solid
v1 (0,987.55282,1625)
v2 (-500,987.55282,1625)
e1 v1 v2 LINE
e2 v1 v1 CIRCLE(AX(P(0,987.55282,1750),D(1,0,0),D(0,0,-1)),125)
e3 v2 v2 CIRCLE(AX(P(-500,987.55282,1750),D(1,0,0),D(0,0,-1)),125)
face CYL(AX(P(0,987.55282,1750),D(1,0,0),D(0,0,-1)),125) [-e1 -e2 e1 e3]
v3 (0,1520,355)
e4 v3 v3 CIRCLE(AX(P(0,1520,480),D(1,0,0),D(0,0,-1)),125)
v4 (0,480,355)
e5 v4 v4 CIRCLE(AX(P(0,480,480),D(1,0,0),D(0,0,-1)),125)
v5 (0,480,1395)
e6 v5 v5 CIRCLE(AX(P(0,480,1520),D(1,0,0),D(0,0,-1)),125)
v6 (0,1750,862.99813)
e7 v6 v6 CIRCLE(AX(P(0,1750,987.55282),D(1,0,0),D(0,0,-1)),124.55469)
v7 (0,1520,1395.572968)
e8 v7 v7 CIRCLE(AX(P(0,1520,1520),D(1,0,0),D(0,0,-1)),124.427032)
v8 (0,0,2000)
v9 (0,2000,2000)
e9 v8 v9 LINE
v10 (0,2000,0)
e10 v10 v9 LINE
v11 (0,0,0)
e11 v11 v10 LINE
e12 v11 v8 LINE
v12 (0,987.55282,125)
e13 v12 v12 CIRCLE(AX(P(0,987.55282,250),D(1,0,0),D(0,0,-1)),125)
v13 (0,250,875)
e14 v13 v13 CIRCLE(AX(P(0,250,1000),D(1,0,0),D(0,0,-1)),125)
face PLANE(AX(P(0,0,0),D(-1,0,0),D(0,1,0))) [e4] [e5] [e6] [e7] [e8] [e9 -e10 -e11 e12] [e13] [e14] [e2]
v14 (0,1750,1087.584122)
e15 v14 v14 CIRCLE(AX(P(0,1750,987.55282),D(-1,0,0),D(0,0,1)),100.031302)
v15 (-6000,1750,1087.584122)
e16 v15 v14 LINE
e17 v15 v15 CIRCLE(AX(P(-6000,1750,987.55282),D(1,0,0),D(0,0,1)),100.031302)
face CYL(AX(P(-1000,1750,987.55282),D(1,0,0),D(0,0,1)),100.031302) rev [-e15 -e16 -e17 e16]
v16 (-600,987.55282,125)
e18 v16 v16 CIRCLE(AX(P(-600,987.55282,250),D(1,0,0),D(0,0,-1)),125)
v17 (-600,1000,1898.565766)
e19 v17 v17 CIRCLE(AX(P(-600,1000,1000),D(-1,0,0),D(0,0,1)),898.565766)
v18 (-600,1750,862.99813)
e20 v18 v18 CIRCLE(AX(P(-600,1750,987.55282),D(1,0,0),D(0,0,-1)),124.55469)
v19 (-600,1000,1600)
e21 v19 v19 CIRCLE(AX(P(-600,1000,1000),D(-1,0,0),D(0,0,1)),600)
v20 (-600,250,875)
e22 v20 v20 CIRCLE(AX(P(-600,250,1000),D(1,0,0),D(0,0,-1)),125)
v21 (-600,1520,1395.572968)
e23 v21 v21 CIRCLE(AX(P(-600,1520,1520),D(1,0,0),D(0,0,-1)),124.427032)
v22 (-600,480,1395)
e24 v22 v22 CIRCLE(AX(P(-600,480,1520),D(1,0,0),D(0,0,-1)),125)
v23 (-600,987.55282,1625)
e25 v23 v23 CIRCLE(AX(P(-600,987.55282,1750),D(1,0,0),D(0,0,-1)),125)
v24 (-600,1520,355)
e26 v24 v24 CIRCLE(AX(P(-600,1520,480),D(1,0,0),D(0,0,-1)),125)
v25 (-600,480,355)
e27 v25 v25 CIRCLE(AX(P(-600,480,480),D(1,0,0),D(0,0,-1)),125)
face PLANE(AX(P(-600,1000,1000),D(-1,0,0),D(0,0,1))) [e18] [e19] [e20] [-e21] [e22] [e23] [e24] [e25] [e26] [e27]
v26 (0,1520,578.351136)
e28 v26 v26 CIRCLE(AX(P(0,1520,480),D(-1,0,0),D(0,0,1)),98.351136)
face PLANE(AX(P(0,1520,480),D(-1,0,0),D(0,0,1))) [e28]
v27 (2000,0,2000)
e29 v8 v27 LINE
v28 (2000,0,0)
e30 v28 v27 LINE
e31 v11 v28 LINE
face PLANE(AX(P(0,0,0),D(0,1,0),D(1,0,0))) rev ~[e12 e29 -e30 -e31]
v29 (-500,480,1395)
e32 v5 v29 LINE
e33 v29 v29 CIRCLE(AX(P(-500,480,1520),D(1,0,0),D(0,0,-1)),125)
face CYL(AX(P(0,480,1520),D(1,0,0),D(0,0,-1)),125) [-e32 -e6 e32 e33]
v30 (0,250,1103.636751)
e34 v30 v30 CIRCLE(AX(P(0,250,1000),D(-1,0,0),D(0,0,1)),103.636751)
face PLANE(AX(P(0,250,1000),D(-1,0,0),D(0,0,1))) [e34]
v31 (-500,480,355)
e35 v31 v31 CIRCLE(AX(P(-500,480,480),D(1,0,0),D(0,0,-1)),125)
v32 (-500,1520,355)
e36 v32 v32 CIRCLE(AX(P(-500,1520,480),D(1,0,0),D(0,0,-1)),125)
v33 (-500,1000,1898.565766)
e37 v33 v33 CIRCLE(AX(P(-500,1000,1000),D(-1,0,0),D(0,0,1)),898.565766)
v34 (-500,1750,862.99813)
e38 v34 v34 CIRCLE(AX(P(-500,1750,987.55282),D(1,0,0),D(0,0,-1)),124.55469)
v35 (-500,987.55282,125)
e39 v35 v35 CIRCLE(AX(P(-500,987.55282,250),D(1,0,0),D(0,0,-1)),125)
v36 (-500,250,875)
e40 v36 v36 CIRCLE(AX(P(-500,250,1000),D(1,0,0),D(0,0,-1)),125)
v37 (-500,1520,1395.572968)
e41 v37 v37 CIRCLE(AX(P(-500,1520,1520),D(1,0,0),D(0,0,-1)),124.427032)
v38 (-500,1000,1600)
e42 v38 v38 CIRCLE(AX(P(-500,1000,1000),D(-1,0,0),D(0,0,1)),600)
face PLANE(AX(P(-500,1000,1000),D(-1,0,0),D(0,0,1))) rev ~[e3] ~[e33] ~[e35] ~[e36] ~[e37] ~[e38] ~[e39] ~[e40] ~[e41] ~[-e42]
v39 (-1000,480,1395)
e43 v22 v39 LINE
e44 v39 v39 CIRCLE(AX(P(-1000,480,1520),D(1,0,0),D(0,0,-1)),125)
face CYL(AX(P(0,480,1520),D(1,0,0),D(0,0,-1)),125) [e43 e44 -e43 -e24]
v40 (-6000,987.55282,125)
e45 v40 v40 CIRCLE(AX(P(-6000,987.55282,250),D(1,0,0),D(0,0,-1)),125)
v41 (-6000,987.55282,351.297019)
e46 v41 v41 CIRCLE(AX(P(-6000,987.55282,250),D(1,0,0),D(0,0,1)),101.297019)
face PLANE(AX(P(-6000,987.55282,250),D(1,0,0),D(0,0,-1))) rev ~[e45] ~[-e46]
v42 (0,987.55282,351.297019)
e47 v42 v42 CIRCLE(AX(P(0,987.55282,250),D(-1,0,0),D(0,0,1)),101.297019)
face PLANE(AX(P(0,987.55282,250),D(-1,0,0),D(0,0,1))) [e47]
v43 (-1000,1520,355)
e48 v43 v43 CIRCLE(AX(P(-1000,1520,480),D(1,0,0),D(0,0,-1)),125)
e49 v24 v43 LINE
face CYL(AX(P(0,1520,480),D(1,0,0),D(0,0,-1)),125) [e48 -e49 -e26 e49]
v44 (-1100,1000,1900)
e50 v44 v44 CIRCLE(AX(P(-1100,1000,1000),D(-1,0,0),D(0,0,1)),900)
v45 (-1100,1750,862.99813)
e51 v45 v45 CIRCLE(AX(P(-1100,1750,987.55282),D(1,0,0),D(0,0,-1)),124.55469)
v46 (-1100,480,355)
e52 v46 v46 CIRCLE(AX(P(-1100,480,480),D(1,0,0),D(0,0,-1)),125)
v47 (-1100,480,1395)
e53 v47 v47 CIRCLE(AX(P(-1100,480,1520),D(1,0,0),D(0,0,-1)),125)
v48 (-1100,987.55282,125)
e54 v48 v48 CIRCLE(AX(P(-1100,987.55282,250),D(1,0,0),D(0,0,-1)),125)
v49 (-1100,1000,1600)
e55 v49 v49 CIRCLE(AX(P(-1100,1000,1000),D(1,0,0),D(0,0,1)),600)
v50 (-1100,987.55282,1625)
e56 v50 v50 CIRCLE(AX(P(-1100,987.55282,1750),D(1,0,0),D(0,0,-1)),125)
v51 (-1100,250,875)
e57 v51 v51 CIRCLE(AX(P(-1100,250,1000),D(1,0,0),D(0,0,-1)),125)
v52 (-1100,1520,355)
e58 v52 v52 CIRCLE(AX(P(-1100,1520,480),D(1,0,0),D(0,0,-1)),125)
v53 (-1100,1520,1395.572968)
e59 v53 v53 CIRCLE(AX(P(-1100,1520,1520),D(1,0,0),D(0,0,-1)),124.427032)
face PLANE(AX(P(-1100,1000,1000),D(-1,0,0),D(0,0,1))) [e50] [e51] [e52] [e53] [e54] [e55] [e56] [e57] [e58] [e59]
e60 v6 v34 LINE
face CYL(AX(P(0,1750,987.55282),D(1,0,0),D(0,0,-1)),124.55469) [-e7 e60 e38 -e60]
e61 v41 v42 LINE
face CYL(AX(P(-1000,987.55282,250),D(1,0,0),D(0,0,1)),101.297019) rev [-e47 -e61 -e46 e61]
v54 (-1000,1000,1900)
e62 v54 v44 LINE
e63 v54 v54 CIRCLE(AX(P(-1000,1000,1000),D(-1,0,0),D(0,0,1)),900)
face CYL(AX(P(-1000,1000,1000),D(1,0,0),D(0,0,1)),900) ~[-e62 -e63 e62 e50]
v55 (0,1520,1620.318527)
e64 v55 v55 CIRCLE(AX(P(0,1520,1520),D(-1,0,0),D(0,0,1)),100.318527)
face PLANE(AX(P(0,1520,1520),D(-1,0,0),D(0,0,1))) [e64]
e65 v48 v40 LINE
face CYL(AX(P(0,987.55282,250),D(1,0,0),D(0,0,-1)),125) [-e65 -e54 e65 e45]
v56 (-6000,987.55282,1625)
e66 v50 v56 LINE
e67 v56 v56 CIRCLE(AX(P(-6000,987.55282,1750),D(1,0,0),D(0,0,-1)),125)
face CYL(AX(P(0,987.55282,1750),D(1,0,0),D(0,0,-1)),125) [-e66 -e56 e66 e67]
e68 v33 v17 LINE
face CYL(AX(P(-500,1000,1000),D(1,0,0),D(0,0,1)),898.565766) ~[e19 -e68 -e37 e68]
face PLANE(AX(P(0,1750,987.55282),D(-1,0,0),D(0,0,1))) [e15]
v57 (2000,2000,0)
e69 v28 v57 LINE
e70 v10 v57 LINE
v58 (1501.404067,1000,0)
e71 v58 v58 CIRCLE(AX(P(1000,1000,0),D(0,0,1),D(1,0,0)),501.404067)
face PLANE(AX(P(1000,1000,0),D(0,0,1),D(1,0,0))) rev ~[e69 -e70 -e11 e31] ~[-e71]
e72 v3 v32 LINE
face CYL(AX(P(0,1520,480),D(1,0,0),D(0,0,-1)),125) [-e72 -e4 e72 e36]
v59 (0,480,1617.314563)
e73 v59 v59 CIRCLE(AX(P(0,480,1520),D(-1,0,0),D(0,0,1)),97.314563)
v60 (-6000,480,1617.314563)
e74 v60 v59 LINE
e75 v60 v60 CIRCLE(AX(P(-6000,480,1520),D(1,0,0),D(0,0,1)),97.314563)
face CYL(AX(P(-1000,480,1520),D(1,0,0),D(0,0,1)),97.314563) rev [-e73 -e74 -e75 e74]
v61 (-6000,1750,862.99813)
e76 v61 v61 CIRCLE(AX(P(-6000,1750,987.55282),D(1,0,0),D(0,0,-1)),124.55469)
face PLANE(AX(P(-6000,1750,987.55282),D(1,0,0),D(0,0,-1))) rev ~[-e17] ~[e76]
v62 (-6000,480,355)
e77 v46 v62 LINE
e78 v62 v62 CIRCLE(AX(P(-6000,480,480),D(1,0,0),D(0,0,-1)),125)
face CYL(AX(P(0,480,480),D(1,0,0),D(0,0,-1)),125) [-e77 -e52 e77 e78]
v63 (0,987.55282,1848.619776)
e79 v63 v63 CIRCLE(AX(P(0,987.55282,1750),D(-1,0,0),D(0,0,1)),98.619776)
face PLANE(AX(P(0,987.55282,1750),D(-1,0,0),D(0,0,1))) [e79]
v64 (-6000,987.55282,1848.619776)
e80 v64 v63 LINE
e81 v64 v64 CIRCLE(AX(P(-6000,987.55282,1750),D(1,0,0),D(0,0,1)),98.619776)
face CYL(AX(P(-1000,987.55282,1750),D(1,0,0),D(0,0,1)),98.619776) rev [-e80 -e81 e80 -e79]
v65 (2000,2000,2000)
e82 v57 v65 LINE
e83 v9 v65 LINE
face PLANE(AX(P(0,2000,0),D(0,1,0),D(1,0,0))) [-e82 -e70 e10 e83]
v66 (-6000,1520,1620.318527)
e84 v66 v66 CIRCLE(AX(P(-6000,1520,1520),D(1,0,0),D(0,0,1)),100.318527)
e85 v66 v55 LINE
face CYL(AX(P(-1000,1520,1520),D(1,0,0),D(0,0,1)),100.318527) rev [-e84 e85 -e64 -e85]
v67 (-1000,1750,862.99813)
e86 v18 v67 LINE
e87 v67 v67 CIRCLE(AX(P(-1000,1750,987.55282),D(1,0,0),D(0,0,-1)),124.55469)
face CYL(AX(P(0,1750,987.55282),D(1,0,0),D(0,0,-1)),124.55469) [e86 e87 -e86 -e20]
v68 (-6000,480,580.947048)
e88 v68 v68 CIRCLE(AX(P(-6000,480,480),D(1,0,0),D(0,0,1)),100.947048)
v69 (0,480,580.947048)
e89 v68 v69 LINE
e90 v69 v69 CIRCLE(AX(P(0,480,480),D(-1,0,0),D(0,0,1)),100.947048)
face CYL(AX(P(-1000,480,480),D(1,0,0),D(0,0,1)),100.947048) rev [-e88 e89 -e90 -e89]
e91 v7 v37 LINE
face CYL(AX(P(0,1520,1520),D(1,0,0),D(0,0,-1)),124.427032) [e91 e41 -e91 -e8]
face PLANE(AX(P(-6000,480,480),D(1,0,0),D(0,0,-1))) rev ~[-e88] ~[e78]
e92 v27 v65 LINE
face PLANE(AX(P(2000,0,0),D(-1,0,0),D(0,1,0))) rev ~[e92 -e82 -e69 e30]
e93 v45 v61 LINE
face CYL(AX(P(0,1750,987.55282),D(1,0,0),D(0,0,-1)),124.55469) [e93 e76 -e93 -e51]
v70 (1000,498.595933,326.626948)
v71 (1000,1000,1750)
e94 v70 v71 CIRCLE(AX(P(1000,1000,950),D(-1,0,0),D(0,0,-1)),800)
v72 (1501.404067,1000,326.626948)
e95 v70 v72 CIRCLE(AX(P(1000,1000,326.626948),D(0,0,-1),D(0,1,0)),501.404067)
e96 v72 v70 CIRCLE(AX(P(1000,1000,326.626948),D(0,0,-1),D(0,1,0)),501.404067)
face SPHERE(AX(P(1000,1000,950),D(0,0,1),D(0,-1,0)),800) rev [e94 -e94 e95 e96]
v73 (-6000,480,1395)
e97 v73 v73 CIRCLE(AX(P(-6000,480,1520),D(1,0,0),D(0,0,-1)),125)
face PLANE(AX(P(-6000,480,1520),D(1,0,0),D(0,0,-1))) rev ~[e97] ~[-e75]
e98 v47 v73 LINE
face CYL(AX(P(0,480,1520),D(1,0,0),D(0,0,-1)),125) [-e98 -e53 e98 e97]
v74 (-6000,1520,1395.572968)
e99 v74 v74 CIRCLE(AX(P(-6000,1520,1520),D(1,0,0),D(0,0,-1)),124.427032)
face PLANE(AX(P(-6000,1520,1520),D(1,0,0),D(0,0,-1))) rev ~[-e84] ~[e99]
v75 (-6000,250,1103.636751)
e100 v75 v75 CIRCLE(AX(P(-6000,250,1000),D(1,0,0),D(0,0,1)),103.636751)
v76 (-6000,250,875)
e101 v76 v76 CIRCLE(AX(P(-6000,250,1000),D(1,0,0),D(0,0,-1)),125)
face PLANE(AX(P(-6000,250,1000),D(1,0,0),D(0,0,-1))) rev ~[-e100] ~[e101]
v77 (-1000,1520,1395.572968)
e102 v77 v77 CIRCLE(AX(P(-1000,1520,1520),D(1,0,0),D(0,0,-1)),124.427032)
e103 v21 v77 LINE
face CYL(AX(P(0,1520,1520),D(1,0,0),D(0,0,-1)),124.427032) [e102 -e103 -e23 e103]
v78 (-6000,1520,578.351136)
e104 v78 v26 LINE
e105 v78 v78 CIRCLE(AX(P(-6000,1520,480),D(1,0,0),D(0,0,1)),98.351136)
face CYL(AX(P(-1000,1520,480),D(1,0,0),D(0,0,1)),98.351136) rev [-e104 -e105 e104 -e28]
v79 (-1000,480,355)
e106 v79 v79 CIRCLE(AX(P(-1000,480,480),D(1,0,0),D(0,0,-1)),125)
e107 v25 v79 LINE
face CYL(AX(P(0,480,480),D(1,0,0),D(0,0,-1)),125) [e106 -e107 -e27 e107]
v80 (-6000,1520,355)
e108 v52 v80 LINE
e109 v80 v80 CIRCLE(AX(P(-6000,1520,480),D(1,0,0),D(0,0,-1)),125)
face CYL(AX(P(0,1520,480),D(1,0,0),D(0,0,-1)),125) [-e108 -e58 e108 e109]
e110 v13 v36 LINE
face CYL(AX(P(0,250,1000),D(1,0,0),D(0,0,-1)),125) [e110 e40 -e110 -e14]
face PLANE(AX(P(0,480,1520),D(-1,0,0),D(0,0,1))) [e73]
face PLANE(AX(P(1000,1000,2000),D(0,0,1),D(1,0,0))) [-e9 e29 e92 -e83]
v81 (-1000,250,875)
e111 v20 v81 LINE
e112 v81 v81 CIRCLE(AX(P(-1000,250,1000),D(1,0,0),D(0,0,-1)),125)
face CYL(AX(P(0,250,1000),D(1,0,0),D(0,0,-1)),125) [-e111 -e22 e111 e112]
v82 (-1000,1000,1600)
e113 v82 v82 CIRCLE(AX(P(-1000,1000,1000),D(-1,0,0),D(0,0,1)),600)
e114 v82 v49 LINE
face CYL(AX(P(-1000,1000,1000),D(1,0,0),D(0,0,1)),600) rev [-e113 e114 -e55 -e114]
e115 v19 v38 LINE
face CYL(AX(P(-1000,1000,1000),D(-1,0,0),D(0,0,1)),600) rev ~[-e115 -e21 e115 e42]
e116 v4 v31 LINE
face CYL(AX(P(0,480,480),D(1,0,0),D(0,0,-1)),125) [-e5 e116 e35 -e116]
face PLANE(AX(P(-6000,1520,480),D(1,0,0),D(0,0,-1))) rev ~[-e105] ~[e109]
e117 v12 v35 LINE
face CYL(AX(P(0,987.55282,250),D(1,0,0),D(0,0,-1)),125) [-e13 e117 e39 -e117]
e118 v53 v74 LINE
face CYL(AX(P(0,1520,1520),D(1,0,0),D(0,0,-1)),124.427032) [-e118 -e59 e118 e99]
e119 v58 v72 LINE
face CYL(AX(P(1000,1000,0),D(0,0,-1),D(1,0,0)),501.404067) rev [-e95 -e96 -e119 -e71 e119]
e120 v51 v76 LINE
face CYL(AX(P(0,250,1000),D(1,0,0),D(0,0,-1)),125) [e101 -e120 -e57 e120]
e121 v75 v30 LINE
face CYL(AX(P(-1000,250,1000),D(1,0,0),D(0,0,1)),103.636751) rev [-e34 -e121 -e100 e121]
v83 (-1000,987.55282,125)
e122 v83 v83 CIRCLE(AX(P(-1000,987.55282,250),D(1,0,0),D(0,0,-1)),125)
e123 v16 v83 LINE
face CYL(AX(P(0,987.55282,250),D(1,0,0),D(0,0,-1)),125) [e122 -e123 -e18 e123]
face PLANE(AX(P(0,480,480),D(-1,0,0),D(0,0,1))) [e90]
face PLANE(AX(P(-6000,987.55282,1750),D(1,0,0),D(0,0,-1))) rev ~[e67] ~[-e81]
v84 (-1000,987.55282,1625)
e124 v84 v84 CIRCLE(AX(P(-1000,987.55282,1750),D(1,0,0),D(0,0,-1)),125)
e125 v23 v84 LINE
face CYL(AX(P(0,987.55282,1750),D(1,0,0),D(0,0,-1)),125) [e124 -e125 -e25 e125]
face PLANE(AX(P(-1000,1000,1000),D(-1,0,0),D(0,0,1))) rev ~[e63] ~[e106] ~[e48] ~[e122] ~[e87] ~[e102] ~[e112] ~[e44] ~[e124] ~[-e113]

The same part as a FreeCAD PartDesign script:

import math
import FreeCAD as App
import Part
import Sketcher

V = App.Vector
Q = App.Units.Quantity


def add_polygon(sketch, points):
    """Adds a closed chain of lines whose ends are joined by coincident constraints."""
    first, n = sketch.GeometryCount, len(points)
    for a, b in zip(points, points[1:] + points[:1]):
        sketch.addGeometry(Part.LineSegment(App.Vector(*a, 0), App.Vector(*b, 0)), False)
    for i in range(n):
        sketch.addConstraint(Sketcher.Constraint("Coincident", first + i, 2, first + (i + 1) % n, 1))

doc = App.newDocument("Part")
body = doc.addObject("PartDesign::Body", "Body")

sketch1 = body.newObject("Sketcher::SketchObject", "Sketch")
sketch1.AttachmentSupport = (doc.getObject("XY_Plane"), [""])
sketch1.MapMode = "FlatFace"
add_polygon(sketch1, [(0, 2000), (0, 0), (2000, 0), (2000, 2000)])
sketch1.addConstraint([
    Sketcher.Constraint("Vertical", 0),
    Sketcher.Constraint("Horizontal", 1),
    Sketcher.Constraint("Vertical", 2),
    Sketcher.Constraint("Horizontal", 3),
    Sketcher.Constraint("Coincident", 0, 2, -1, 1),
    Sketcher.Constraint("Equal", 3, 0),
    Sketcher.Constraint("DistanceX", 1, 1, 1, 2, Q("2000 mm")),
])
pad1 = body.newObject("PartDesign::Pad", "Pad")
pad1.Profile = sketch1
pad1.Length = 2000

sketch2 = body.newObject("Sketcher::SketchObject", "Sketch001")
sketch2.AttachmentSupport = (doc.getObject("YZ_Plane"), [""])
sketch2.MapMode = "FlatFace"
sketch2.AttachmentOffset = App.Placement(V(0, 0, 1000), App.Rotation())
sketch2.addGeometry([
    Part.LineSegment(V(1000, 150, 0), V(1000, 1750, 0)),
    Part.ArcOfCircle(Part.Circle(V(1000, 950, 0), V(0, 0, 1), 800), math.radians(90), math.radians(270)),
], False)
sketch2.addGeometry(Part.LineSegment(V(1000, 1750, 0), V(1000, 150, 0)), True)
sketch2.addConstraint([
    Sketcher.Constraint("Coincident", 0, 1, 1, 2),
    Sketcher.Constraint("Coincident", 1, 1, 0, 2),
    Sketcher.Constraint("Vertical", 0),
    Sketcher.Constraint("Vertical", 2),
    Sketcher.Constraint("Coincident", 2, 2, 0, 1),
    Sketcher.Constraint("Vertical", 1, 3, 0, 1),
    Sketcher.Constraint("Equal", 0, 2),
    Sketcher.Constraint("Radius", 1, Q("800 mm")),
    Sketcher.Constraint("DistanceX", -1, 1, 1, 3, Q("1000 mm")),
    Sketcher.Constraint("DistanceY", -1, 1, 1, 3, Q("950 mm")),
])
groove = body.newObject("PartDesign::Groove", "Groove")
groove.Profile = sketch2
groove.ReferenceAxis = (sketch2, ["Axis0"])
groove.Angle = 360

sketch3 = body.newObject("Sketcher::SketchObject", "Sketch002")
sketch3.AttachmentSupport = (doc.getObject("XY_Plane"), [""])
sketch3.MapMode = "FlatFace"
sketch3.addGeometry(Part.Circle(V(1000, 1000, 0), V(0, 0, 1), 501), False)
sketch3.addConstraint([
    Sketcher.Constraint("DistanceX", -1, 1, 0, 3, Q("1000 mm")),
    Sketcher.Constraint("DistanceY", -1, 1, 0, 3, Q("1000 mm")),
    Sketcher.Constraint("Diameter", 0, Q("1002.808134 mm")),
])
pocket1 = body.newObject("PartDesign::Pocket", "Pocket")
pocket1.Profile = sketch3
pocket1.Length = 500
pocket1.Reversed = True

sketch4 = body.newObject("Sketcher::SketchObject", "Sketch003")
sketch4.AttachmentSupport = (doc.getObject("YZ_Plane"), [""])
sketch4.MapMode = "FlatFace"
sketch4.addGeometry([
    Part.Circle(V(1750, 988, 0), V(0, 0, 1), 125),
    Part.Circle(V(988, 1750, 0), V(0, 0, 1), 125),
    Part.Circle(V(250, 1000, 0), V(0, 0, 1), 125),
    Part.Circle(V(988, 250, 0), V(0, 0, 1), 125),
    Part.Circle(V(1520, 480, 0), V(0, 0, 1), 125),
    Part.Circle(V(1520, 1520, 0), V(0, 0, 1), 124),
    Part.Circle(V(480, 1520, 0), V(0, 0, 1), 125),
    Part.Circle(V(480, 480, 0), V(0, 0, 1), 125),
], False)
sketch4.addConstraint([
    Sketcher.Constraint("Equal", 1, 2),
    Sketcher.Constraint("Equal", 2, 3),
    Sketcher.Constraint("Equal", 3, 4),
    Sketcher.Constraint("Equal", 4, 6),
    Sketcher.Constraint("Equal", 6, 7),
    Sketcher.Constraint("Horizontal", 5, 3, 6, 3),
    Sketcher.Constraint("Horizontal", 4, 3, 7, 3),
    Sketcher.Constraint("Vertical", 1, 3, 3, 3),
    Sketcher.Constraint("Vertical", 4, 3, 5, 3),
    Sketcher.Constraint("Vertical", 6, 3, 7, 3),
    Sketcher.Constraint("Diameter", 1, Q("250 mm")),
    Sketcher.Constraint("DistanceX", -1, 1, 0, 3, Q("1750 mm")),
    Sketcher.Constraint("DistanceY", -1, 1, 1, 3, Q("1750 mm")),
    Sketcher.Constraint("DistanceX", -1, 1, 2, 3, Q("250 mm")),
    Sketcher.Constraint("DistanceY", -1, 1, 2, 3, Q("1000 mm")),
    Sketcher.Constraint("DistanceY", -1, 1, 3, 3, Q("250 mm")),
    Sketcher.Constraint("DistanceX", -1, 1, 4, 3, Q("1520 mm")),
    Sketcher.Constraint("DistanceY", -1, 1, 4, 3, Q("480 mm")),
    Sketcher.Constraint("DistanceY", -1, 1, 5, 3, Q("1520 mm")),
    Sketcher.Constraint("DistanceX", -1, 1, 6, 3, Q("480 mm")),
    Sketcher.Constraint("Diameter", 0, Q("249.10938 mm")),
    Sketcher.Constraint("Diameter", 5, Q("248.854065 mm")),
    Sketcher.Constraint("DistanceY", -1, 1, 0, 3, Q("987.55282 mm")),
    Sketcher.Constraint("DistanceX", -1, 1, 1, 3, Q("987.55282 mm")),
])
pad2 = body.newObject("PartDesign::Pad", "Pad001")
pad2.Profile = sketch4
pad2.Length = 6000
pad2.Reversed = True

sketch5 = body.newObject("Sketcher::SketchObject", "Sketch004")
sketch5.AttachmentSupport = (doc.getObject("YZ_Plane"), [""])
sketch5.MapMode = "FlatFace"
sketch5.AttachmentOffset = App.Placement(V(0, 0, -1000), App.Rotation())
sketch5.addGeometry(Part.Circle(V(1000, 1000, 0), V(0, 0, 1), 900), False)
sketch5.addConstraint([
    Sketcher.Constraint("Diameter", 0, Q("1800 mm")),
    Sketcher.Constraint("DistanceX", -1, 1, 0, 3, Q("1000 mm")),
    Sketcher.Constraint("DistanceY", -1, 1, 0, 3, Q("1000 mm")),
])
pad3 = body.newObject("PartDesign::Pad", "Pad002")
pad3.Profile = sketch5
pad3.Length = 100
pad3.Reversed = True

sketch6 = body.newObject("Sketcher::SketchObject", "Sketch005")
sketch6.AttachmentSupport = (doc.getObject("YZ_Plane"), [""])
sketch6.MapMode = "FlatFace"
sketch6.AttachmentOffset = App.Placement(V(0, 0, -500), App.Rotation())
sketch6.addGeometry(Part.Circle(V(1000, 1000, 0), V(0, 0, 1), 899), False)
sketch6.addConstraint([
    Sketcher.Constraint("DistanceX", -1, 1, 0, 3, Q("1000 mm")),
    Sketcher.Constraint("DistanceY", -1, 1, 0, 3, Q("1000 mm")),
    Sketcher.Constraint("Diameter", 0, Q("1797.131532 mm")),
])
pad4 = body.newObject("PartDesign::Pad", "Pad003")
pad4.Profile = sketch6
pad4.Length = 100
pad4.Reversed = True

sketch7 = body.newObject("Sketcher::SketchObject", "Sketch006")
sketch7.AttachmentSupport = (doc.getObject("YZ_Plane"), [""])
sketch7.MapMode = "FlatFace"
sketch7.AttachmentOffset = App.Placement(V(0, 0, -1000), App.Rotation())
sketch7.addGeometry(Part.Circle(V(1000, 1000, 0), V(0, 0, 1), 600), False)
sketch7.addConstraint([
    Sketcher.Constraint("Diameter", 0, Q("1200 mm")),
    Sketcher.Constraint("DistanceX", -1, 1, 0, 3, Q("1000 mm")),
    Sketcher.Constraint("DistanceY", -1, 1, 0, 3, Q("1000 mm")),
])
pocket2 = body.newObject("PartDesign::Pocket", "Pocket001")
pocket2.Profile = sketch7
pocket2.Type = "TwoLengths"
pocket2.Length = 600
pocket2.Length2 = 600

sketch8 = body.newObject("Sketcher::SketchObject", "Sketch007")
sketch8.AttachmentSupport = (doc.getObject("YZ_Plane"), [""])
sketch8.MapMode = "FlatFace"
sketch8.AttachmentOffset = App.Placement(V(0, 0, -1000), App.Rotation())
sketch8.addGeometry([
    Part.Circle(V(1520, 480, 0), V(0, 0, 1), 98),
    Part.Circle(V(1750, 988, 0), V(0, 0, 1), 100),
    Part.Circle(V(480, 480, 0), V(0, 0, 1), 101),
    Part.Circle(V(250, 1000, 0), V(0, 0, 1), 104),
    Part.Circle(V(480, 1520, 0), V(0, 0, 1), 97),
    Part.Circle(V(988, 1750, 0), V(0, 0, 1), 99),
    Part.Circle(V(1520, 1520, 0), V(0, 0, 1), 100),
    Part.Circle(V(988, 250, 0), V(0, 0, 1), 101),
], False)
sketch8.addConstraint([
    Sketcher.Constraint("Horizontal", 0, 3, 2, 3),
    Sketcher.Constraint("Horizontal", 4, 3, 6, 3),
    Sketcher.Constraint("Vertical", 2, 3, 4, 3),
    Sketcher.Constraint("Vertical", 0, 3, 6, 3),
    Sketcher.Constraint("Vertical", 5, 3, 7, 3),
    Sketcher.Constraint("DistanceX", -1, 1, 0, 3, Q("1520 mm")),
    Sketcher.Constraint("DistanceY", -1, 1, 0, 3, Q("480 mm")),
    Sketcher.Constraint("DistanceX", -1, 1, 1, 3, Q("1750 mm")),
    Sketcher.Constraint("DistanceX", -1, 1, 2, 3, Q("480 mm")),
    Sketcher.Constraint("DistanceX", -1, 1, 3, 3, Q("250 mm")),
    Sketcher.Constraint("DistanceY", -1, 1, 3, 3, Q("1000 mm")),
    Sketcher.Constraint("DistanceY", -1, 1, 4, 3, Q("1520 mm")),
    Sketcher.Constraint("DistanceY", -1, 1, 5, 3, Q("1750 mm")),
    Sketcher.Constraint("DistanceY", -1, 1, 7, 3, Q("250 mm")),
    Sketcher.Constraint("Diameter", 7, Q("202.594038 mm")),
    Sketcher.Constraint("Diameter", 0, Q("196.702273 mm")),
    Sketcher.Constraint("Diameter", 1, Q("200.062604 mm")),
    Sketcher.Constraint("Diameter", 2, Q("201.894097 mm")),
    Sketcher.Constraint("Diameter", 3, Q("207.273503 mm")),
    Sketcher.Constraint("Diameter", 4, Q("194.629126 mm")),
    Sketcher.Constraint("Diameter", 5, Q("197.239553 mm")),
    Sketcher.Constraint("Diameter", 6, Q("200.637054 mm")),
    Sketcher.Constraint("DistanceY", -1, 1, 1, 3, Q("987.55282 mm")),
    Sketcher.Constraint("DistanceX", -1, 1, 5, 3, Q("987.55282 mm")),
])
pocket3 = body.newObject("PartDesign::Pocket", "Pocket002")
pocket3.Profile = sketch8
pocket3.Type = "TwoLengths"
pocket3.Length = 5001
pocket3.Length2 = 1000

doc.recompute()
